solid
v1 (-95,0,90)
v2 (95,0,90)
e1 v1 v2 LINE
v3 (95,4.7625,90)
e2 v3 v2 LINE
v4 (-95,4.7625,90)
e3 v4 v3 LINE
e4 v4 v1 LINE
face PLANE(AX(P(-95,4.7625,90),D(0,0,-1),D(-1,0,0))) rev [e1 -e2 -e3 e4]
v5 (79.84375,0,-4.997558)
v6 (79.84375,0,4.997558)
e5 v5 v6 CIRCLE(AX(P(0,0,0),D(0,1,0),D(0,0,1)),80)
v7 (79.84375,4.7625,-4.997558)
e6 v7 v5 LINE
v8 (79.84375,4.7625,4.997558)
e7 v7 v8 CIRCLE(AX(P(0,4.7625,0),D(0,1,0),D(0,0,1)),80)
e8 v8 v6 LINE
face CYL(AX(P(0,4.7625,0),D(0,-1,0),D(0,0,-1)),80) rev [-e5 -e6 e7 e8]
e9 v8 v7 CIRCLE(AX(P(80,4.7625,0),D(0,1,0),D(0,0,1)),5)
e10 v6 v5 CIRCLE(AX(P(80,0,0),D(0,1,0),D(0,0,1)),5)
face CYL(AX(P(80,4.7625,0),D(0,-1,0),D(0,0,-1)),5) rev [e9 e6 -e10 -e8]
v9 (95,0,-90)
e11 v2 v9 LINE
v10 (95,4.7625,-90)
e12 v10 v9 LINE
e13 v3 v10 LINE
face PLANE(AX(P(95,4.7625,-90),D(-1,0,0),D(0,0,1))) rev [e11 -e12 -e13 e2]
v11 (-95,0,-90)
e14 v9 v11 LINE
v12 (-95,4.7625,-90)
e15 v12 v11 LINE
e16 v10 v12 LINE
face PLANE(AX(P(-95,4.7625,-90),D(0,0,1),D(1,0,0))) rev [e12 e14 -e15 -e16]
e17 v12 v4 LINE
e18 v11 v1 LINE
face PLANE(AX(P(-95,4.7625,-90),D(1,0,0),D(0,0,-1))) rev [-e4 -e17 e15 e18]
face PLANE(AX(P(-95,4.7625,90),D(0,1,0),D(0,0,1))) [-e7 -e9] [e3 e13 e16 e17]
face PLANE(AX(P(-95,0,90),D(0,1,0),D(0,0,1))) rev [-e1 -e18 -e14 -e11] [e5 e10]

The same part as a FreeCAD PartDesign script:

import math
import FreeCAD as App
import Part
import Sketcher
from FreeCAD import Vector

doc = App.newDocument("Part")
params = doc.addObject("Spreadsheet::Sheet", "Params")
for row, (alias, value) in enumerate([
    ("sketch1_radius", "80 mm"),
    ("sketch1_radius2", "5 mm"),
    ("sketch1_width", "190 mm"),
    ("sketch1_height", "180 mm"),
    ("pad1_length", "4.7625 mm"),
], start=1):
    params.set(f"A{row}", alias)
    params.set(f"B{row}", "=" + value)
    params.setAlias(f"B{row}", alias)

body = doc.addObject("PartDesign::Body", "Body")

sketch1 = doc.addObject("Sketcher::SketchObject", "Sketch")
body.addObject(sketch1)
sketch1.AttachmentSupport = (doc.XZ_Plane, [""])
sketch1.MapMode = "FlatFace"
sketch1.addGeometry([
    Part.LineSegment(Vector(-95, -90, 0), Vector(-95, 90, 0)),
    Part.LineSegment(Vector(-95, 90, 0), Vector(95, 90, 0)),
    Part.LineSegment(Vector(95, 90, 0), Vector(95, -90, 0)),
    Part.LineSegment(Vector(95, -90, 0), Vector(-95, -90, 0)),
    Part.ArcOfCircle(Part.Circle(Vector(0, 0, 0), Vector(0, 0, 1), 80), math.radians(3.581569), math.radians(356.418431)),
    Part.ArcOfCircle(Part.Circle(Vector(80, 0, 0), Vector(0, 0, 1), 5), math.radians(-91.790785), math.radians(91.790785)),
], False)
sketch1.addConstraint([
    Sketcher.Constraint("Coincident", 0, 2, 1, 1),
    Sketcher.Constraint("Coincident", 1, 2, 2, 1),
    Sketcher.Constraint("Coincident", 2, 2, 3, 1),
    Sketcher.Constraint("Coincident", 3, 2, 0, 1),
    Sketcher.Constraint("Coincident", 4, 1, 5, 2),
    Sketcher.Constraint("Coincident", 5, 1, 4, 2),
    Sketcher.Constraint("Vertical", 0),
    Sketcher.Constraint("Horizontal", 1),
    Sketcher.Constraint("Vertical", 2),
    Sketcher.Constraint("Horizontal", 3),
    Sketcher.Constraint("Coincident", 4, 3, -1, 1),
    Sketcher.Constraint("Symmetric", 0, 2, 2, 2, -1, 1),
    Sketcher.Constraint("PointOnObject", 5, 3, -1),
    Sketcher.Constraint("Radius", 4, 80.0),
    Sketcher.Constraint("Radius", 5, 5.0),
    Sketcher.Constraint("DistanceX", 1, 1, 1, 2, 190.0),
    Sketcher.Constraint("DistanceY", 0, 1, 0, 2, 180.0),
    Sketcher.Constraint("DistanceX", -1, 1, 5, 3, 80.0),
])
sketch1.setExpression("Constraints[13]", "Params.sketch1_radius")
sketch1.setExpression("Constraints[14]", "Params.sketch1_radius2")
sketch1.setExpression("Constraints[15]", "Params.sketch1_width")
sketch1.setExpression("Constraints[16]", "Params.sketch1_height")
pad1 = doc.addObject("PartDesign::Pad", "Pad")
body.addObject(pad1)
pad1.Profile = sketch1
pad1.setExpression("Length", "Params.pad1_length")
pad1.Reversed = True

doc.recompute()
